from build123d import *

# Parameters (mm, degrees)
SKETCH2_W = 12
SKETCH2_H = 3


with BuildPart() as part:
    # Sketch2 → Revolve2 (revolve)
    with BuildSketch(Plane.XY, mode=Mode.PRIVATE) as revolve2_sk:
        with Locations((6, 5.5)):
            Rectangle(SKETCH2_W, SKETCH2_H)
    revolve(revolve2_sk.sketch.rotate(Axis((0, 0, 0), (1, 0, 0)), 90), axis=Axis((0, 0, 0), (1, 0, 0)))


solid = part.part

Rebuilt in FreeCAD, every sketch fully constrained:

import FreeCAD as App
import Part
import Sketcher

doc = App.newDocument("Part")
params = doc.addObject("Spreadsheet::Sheet", "Params")
for row, (alias, value) in enumerate([
    ("sketch1_width", "12 mm"),
    ("sketch1_height", "3 mm"),
    ("revolution_angle", "360 deg"),
], start=1):
    params.set(f"A{row}", alias)
    params.set(f"B{row}", "=" + value)
    params.setAlias(f"B{row}", alias)

body = doc.addObject("PartDesign::Body", "Body")

# Sketch on XY plane
sketch1 = doc.addObject("Sketcher::SketchObject", "Sketch")
body.addObject(sketch1)
sketch1.AttachmentSupport = (doc.XY_Plane, [""])
sketch1.MapMode = "FlatFace"
sketch1.addGeometry(Part.LineSegment(App.Vector(0, 7, 0), App.Vector(0, 4, 0)), False)
sketch1.addGeometry(Part.LineSegment(App.Vector(0, 4, 0), App.Vector(12, 4, 0)), False)
sketch1.addGeometry(Part.LineSegment(App.Vector(12, 4, 0), App.Vector(12, 7, 0)), False)
sketch1.addGeometry(Part.LineSegment(App.Vector(12, 7, 0), App.Vector(0, 7, 0)), False)
sketch1.addConstraint(Sketcher.Constraint("Coincident", 0, 2, 1, 1))
sketch1.addConstraint(Sketcher.Constraint("Coincident", 1, 2, 2, 1))
sketch1.addConstraint(Sketcher.Constraint("Coincident", 2, 2, 3, 1))
sketch1.addConstraint(Sketcher.Constraint("Coincident", 3, 2, 0, 1))
sketch1.addConstraint(Sketcher.Constraint("Vertical", 0))
sketch1.addConstraint(Sketcher.Constraint("Horizontal", 1))
sketch1.addConstraint(Sketcher.Constraint("Vertical", 2))
sketch1.addConstraint(Sketcher.Constraint("Horizontal", 3))
sketch1.addConstraint(Sketcher.Constraint("PointOnObject", 0, 2, -2))
sketch1.addConstraint(Sketcher.Constraint("DistanceX", 1, 1, 1, 2, 12.0))
sketch1.addConstraint(Sketcher.Constraint("DistanceY", 0, 2, 0, 1, 3.0))
sketch1.addConstraint(Sketcher.Constraint("DistanceY", -1, 1, 0, 2, 4.0))
sketch1.setExpression("Constraints[9]", "Params.sketch1_width")
sketch1.setExpression("Constraints[10]", "Params.sketch1_height")
revolution = doc.addObject("PartDesign::Revolution", "Revolution")
body.addObject(revolution)
revolution.Profile = sketch1
revolution.ReferenceAxis = (sketch1, ["H_Axis"])
revolution.setExpression("Angle", "Params.revolution_angle")

doc.recompute()
